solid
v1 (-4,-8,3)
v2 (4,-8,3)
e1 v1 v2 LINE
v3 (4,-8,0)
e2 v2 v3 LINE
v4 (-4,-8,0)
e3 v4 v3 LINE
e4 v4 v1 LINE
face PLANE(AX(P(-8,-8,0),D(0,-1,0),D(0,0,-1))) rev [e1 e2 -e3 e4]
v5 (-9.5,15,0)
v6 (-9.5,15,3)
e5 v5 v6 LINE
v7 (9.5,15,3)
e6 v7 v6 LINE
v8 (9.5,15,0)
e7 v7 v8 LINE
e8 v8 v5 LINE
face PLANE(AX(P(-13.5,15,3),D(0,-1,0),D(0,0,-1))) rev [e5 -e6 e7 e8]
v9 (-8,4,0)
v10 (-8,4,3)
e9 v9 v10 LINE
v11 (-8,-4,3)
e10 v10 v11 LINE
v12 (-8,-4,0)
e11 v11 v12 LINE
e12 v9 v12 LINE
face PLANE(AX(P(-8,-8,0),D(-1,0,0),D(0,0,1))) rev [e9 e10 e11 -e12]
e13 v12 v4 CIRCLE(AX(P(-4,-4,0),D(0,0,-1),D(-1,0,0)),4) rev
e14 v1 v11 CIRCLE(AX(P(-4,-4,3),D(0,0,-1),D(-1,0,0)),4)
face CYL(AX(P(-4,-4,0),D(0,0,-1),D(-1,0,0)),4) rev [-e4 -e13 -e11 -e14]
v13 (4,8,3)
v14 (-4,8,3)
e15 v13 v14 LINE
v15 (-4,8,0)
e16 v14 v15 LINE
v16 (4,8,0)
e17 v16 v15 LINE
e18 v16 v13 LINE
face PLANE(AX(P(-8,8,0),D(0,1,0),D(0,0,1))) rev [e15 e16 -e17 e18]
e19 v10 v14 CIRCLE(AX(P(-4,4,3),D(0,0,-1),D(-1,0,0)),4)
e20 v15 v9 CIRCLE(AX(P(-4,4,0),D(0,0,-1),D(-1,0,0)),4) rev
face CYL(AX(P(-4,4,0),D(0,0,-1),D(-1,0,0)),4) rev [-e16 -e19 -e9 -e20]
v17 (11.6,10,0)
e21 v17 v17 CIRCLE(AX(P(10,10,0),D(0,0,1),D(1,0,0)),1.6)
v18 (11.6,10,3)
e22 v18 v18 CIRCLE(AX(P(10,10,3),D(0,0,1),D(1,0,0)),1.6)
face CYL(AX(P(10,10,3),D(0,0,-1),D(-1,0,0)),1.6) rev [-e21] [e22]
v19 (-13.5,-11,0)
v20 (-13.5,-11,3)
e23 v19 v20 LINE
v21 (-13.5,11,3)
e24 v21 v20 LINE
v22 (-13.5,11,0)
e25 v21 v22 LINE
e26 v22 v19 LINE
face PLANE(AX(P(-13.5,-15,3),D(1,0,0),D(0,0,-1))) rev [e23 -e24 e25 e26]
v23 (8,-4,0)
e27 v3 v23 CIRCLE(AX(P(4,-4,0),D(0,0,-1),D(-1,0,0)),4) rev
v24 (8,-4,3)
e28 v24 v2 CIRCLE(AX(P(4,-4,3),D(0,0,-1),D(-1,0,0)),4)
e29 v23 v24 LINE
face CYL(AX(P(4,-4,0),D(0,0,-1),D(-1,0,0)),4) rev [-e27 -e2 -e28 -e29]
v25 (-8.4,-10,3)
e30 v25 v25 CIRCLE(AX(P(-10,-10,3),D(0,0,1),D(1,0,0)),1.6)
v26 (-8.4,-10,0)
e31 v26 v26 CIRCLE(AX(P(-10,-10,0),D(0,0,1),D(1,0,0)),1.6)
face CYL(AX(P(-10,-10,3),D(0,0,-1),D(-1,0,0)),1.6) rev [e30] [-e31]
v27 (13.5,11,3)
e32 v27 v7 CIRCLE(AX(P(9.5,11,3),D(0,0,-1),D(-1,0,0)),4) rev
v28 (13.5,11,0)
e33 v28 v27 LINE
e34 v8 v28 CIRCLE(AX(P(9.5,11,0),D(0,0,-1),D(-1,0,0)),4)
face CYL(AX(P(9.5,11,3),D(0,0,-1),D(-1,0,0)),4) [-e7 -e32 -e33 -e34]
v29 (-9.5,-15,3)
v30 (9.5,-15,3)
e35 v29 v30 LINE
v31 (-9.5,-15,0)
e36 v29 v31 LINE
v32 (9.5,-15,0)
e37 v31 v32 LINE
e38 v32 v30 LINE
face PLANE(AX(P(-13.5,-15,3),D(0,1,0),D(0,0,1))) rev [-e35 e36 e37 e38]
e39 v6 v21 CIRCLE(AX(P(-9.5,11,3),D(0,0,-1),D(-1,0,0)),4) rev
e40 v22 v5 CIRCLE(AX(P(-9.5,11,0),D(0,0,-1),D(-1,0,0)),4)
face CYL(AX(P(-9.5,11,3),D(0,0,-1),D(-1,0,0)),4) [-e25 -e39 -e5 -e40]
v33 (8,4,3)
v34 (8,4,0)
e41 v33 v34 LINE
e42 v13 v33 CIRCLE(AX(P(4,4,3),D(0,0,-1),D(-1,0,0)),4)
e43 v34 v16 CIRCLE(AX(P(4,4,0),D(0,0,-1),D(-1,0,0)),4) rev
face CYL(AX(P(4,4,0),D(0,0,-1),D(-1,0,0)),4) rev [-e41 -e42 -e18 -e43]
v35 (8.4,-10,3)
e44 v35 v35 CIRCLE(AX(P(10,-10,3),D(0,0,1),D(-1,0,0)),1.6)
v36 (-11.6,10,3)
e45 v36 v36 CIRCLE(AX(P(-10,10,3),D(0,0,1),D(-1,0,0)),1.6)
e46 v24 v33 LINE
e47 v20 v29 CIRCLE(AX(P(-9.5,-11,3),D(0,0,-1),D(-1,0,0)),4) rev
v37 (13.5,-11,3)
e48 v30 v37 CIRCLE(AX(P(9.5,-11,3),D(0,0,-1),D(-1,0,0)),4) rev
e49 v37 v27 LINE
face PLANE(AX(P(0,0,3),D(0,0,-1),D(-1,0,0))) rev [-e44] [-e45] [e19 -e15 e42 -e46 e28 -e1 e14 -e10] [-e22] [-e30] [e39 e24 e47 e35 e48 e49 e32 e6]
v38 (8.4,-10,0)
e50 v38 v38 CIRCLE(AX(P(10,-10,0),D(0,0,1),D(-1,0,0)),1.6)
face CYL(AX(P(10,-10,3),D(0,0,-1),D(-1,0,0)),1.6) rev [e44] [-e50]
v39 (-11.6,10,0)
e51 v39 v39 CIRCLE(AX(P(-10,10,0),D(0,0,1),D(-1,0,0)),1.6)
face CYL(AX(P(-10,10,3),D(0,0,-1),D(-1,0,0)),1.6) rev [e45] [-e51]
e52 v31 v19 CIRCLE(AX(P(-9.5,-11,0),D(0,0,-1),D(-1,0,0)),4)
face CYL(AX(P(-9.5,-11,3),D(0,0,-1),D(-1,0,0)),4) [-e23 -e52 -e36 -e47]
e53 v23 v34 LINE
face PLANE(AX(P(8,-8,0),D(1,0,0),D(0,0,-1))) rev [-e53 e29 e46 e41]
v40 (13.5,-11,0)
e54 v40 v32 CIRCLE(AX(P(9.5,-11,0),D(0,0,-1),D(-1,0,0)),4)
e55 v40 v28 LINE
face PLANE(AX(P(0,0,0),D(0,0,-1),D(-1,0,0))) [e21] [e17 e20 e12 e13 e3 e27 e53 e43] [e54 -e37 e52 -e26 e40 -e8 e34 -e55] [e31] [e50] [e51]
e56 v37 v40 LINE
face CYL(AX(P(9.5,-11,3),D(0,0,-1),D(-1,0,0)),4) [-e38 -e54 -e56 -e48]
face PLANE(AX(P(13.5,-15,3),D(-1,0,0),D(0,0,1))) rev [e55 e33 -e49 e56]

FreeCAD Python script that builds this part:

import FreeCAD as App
import Part
import Sketcher
from FreeCAD import Vector


def edges_at(feature, points):
    """Names of the edges that pass closest to the given points."""
    edges = feature.Shape.Edges
    near = lambda p: min(range(len(edges)), key=lambda i: edges[i].distToShape(Part.Vertex(*p))[0])
    return sorted({f"Edge{near(p) + 1}" for p in points})

doc = App.newDocument("Part")
body = doc.addObject("PartDesign::Body", "Body")

# Sketch on XY plane
sketch1 = doc.addObject("Sketcher::SketchObject", "Sketch")
body.addObject(sketch1)
sketch1.AttachmentSupport = (doc.XY_Plane, [""])
sketch1.MapMode = "FlatFace"
sketch1.addGeometry([
    Part.LineSegment(Vector(-13.5, 15, 0), Vector(-13.5, -15, 0)),  # 0
    Part.LineSegment(Vector(-13.5, -15, 0), Vector(13.5, -15, 0)),  # 1
    Part.LineSegment(Vector(13.5, -15, 0), Vector(13.5, 15, 0)),  # 2
    Part.LineSegment(Vector(13.5, 15, 0), Vector(-13.5, 15, 0)),  # 3
    Part.Circle(Vector(-10, -10, 0), Vector(0, 0, 1), 1.6),  # 4
    Part.Circle(Vector(10, -10, 0), Vector(0, 0, 1), 1.6),  # 5
    Part.Circle(Vector(-10, 10, 0), Vector(0, 0, 1), 1.6),  # 6
    Part.Circle(Vector(10, 10, 0), Vector(0, 0, 1), 1.6),  # 7
], False)
sketch1.addConstraint([
    Sketcher.Constraint("Coincident", 0, 2, 1, 1),
    Sketcher.Constraint("Coincident", 1, 2, 2, 1),
    Sketcher.Constraint("Coincident", 2, 2, 3, 1),
    Sketcher.Constraint("Coincident", 3, 2, 0, 1),
    Sketcher.Constraint("Vertical", 0),
    Sketcher.Constraint("Horizontal", 1),
    Sketcher.Constraint("Vertical", 2),
    Sketcher.Constraint("Horizontal", 3),
    Sketcher.Constraint("Equal", 4, 5),
    Sketcher.Constraint("Equal", 5, 6),
    Sketcher.Constraint("Equal", 6, 7),
    Sketcher.Constraint("Symmetric", 5, 3, 6, 3, -1, 1),
    Sketcher.Constraint("Symmetric", 4, 3, 7, 3, -1, 1),
    Sketcher.Constraint("Symmetric", 0, 2, 2, 2, -1, 1),
    Sketcher.Constraint("Symmetric", 4, 3, 5, 3, -2),
    Sketcher.Constraint("Diameter", 4, 3.2),
    Sketcher.Constraint("DistanceX", 1, 1, 1, 2, 27.0),
    Sketcher.Constraint("DistanceY", 0, 2, 0, 1, 30.0),
    Sketcher.Constraint("DistanceX", 4, 3, -1, 1, 10.0),
    Sketcher.Constraint("DistanceY", 4, 3, -1, 1, 10.0),
])
pad1 = doc.addObject("PartDesign::Pad", "Pad")
body.addObject(pad1)
pad1.Profile = sketch1
pad1.Length = 3

# Sketch on XY plane
sketch2 = doc.addObject("Sketcher::SketchObject", "Sketch001")
body.addObject(sketch2)
sketch2.AttachmentSupport = (doc.XY_Plane, [""])
sketch2.MapMode = "FlatFace"
sketch2.AttachmentOffset = App.Placement(Vector(0, 0, 3), App.Rotation())
sketch2.addGeometry([
    Part.LineSegment(Vector(-8, 8, 0), Vector(-8, -8, 0)),
    Part.LineSegment(Vector(-8, -8, 0), Vector(8, -8, 0)),
    Part.LineSegment(Vector(8, -8, 0), Vector(8, 8, 0)),
    Part.LineSegment(Vector(8, 8, 0), Vector(-8, 8, 0)),
], False)
sketch2.addConstraint([
    Sketcher.Constraint("Coincident", 0, 2, 1, 1),
    Sketcher.Constraint("Coincident", 1, 2, 2, 1),
    Sketcher.Constraint("Coincident", 2, 2, 3, 1),
    Sketcher.Constraint("Coincident", 3, 2, 0, 1),
    Sketcher.Constraint("Vertical", 0),
    Sketcher.Constraint("Horizontal", 1),
    Sketcher.Constraint("Vertical", 2),
    Sketcher.Constraint("Horizontal", 3),
    Sketcher.Constraint("Symmetric", 0, 2, 2, 2, -1, 1),
    Sketcher.Constraint("Equal", 3, 0),
    Sketcher.Constraint("DistanceX", 1, 1, 1, 2, 16.0),
])
pocket1 = doc.addObject("PartDesign::Pocket", "Pocket")
body.addObject(pocket1)
pocket1.Profile = sketch2
pocket1.Type = "ThroughAll"
doc.recompute()

fillet = doc.addObject("PartDesign::Fillet", "Fillet")
body.addObject(fillet)
fillet.Base = (pocket1, edges_at(pocket1, [
    (8, 8, 1.5),
    (8, -8, 1.5),
    (-8, -8, 1.5),
    (-8, 8, 1.5),
    (13.5, -15, 1.5),
    (-13.5, -15, 1.5),
    (-13.5, 15, 1.5),
    (13.5, 15, 1.5),
]))
fillet.Radius = 4

doc.recompute()
